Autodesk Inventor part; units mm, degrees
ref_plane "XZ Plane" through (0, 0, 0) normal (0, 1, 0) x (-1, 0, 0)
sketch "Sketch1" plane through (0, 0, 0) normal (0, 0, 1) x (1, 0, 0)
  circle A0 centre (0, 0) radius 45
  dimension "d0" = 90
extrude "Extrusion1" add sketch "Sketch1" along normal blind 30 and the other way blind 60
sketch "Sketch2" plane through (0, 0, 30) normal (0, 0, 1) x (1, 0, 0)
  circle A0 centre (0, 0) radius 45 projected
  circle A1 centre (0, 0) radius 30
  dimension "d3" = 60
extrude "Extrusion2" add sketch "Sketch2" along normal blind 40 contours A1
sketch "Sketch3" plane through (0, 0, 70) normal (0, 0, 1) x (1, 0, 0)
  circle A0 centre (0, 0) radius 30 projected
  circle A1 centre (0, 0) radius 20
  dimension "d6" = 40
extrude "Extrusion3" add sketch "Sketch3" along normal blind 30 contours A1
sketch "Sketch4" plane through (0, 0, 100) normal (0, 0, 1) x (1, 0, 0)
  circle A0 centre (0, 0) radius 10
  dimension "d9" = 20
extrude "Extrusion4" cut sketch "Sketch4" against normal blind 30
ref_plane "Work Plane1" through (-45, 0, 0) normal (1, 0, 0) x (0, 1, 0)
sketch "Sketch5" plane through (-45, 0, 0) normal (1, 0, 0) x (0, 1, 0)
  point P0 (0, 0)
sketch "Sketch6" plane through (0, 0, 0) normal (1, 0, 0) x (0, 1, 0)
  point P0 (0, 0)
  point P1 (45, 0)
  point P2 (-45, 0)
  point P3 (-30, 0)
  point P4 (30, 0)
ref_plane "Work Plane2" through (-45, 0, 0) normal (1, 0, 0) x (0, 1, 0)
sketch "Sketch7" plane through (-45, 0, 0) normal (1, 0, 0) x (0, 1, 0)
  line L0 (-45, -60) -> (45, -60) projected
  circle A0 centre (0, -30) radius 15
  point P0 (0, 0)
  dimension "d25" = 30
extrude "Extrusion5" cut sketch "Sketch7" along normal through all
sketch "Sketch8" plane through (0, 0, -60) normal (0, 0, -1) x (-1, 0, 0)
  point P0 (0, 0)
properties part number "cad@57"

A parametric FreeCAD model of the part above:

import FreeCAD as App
import Part
import Sketcher
from FreeCAD import Vector
Q = App.Units.Quantity

doc = App.newDocument("Part")
params = doc.addObject("Spreadsheet::Sheet", "Params")
for row, (alias, value) in enumerate([
    ("sketch1_diameter", "90 mm"),
    ("pad1_length", "30 mm"),
    ("pad1_length2", "60 mm"),
    ("sketch2_diameter", "60 mm"),
    ("pad2_length", "40 mm"),
    ("sketch3_diameter", "40 mm"),
    ("pad3_length", "30 mm"),
    ("sketch4_diameter", "20 mm"),
    ("pocket1_length", "30 mm"),
    ("sketch5_diameter", "30 mm"),
], start=1):
    params.set(f"A{row}", alias)
    params.set(f"B{row}", "=" + value)
    params.setAlias(f"B{row}", alias)

body = doc.addObject("PartDesign::Body", "Body")

sketch1 = body.newObject("Sketcher::SketchObject", "Sketch")
sketch1.AttachmentSupport = (doc.getObject("XY_Plane"), [""])
sketch1.MapMode = "FlatFace"
sketch1.addGeometry(Part.Circle(Vector(0, 0, 0), Vector(0, 0, 1), 45), False)
sketch1.addConstraint(Sketcher.Constraint("Coincident", 0, 3, -1, 1))
sketch1.addConstraint(Sketcher.Constraint("Diameter", 0, Q("90 mm")))
sketch1.setExpression("Constraints[1]", "Params.sketch1_diameter")
pad1 = body.newObject("PartDesign::Pad", "Pad")
pad1.Profile = sketch1
pad1.Type = "TwoLengths"
pad1.setExpression("Length", "Params.pad1_length")
pad1.setExpression("Length2", "Params.pad1_length2")

sketch2 = body.newObject("Sketcher::SketchObject", "Sketch001")
sketch2.AttachmentSupport = (doc.getObject("XY_Plane"), [""])
sketch2.MapMode = "FlatFace"
sketch2.AttachmentOffset = App.Placement(Vector(0, 0, 30), App.Rotation())
sketch2.addGeometry(Part.Circle(Vector(0, 0, 0), Vector(0, 0, 1), 30), False)
sketch2.addConstraint(Sketcher.Constraint("Coincident", 0, 3, -1, 1))
sketch2.addConstraint(Sketcher.Constraint("Diameter", 0, Q("60 mm")))
sketch2.setExpression("Constraints[1]", "Params.sketch2_diameter")
pad2 = body.newObject("PartDesign::Pad", "Pad001")
pad2.Profile = sketch2
pad2.setExpression("Length", "Params.pad2_length")

sketch3 = body.newObject("Sketcher::SketchObject", "Sketch002")
sketch3.AttachmentSupport = (doc.getObject("XY_Plane"), [""])
sketch3.MapMode = "FlatFace"
sketch3.AttachmentOffset = App.Placement(Vector(0, 0, 70), App.Rotation())
sketch3.addGeometry(Part.Circle(Vector(0, 0, 0), Vector(0, 0, 1), 20), False)
sketch3.addConstraint(Sketcher.Constraint("Coincident", 0, 3, -1, 1))
sketch3.addConstraint(Sketcher.Constraint("Diameter", 0, Q("40 mm")))
sketch3.setExpression("Constraints[1]", "Params.sketch3_diameter")
pad3 = body.newObject("PartDesign::Pad", "Pad002")
pad3.Profile = sketch3
pad3.setExpression("Length", "Params.pad3_length")

sketch4 = body.newObject("Sketcher::SketchObject", "Sketch003")
sketch4.AttachmentSupport = (doc.getObject("XY_Plane"), [""])
sketch4.MapMode = "FlatFace"
sketch4.AttachmentOffset = App.Placement(Vector(0, 0, 100), App.Rotation())
sketch4.addGeometry(Part.Circle(Vector(0, 0, 0), Vector(0, 0, 1), 10), False)
sketch4.addConstraint(Sketcher.Constraint("Coincident", 0, 3, -1, 1))
sketch4.addConstraint(Sketcher.Constraint("Diameter", 0, Q("20 mm")))
sketch4.setExpression("Constraints[1]", "Params.sketch4_diameter")
pocket1 = body.newObject("PartDesign::Pocket", "Pocket")
pocket1.Profile = sketch4
pocket1.setExpression("Length", "Params.pocket1_length")

sketch5 = body.newObject("Sketcher::SketchObject", "Sketch004")
sketch5.AttachmentSupport = (doc.getObject("YZ_Plane"), [""])
sketch5.MapMode = "FlatFace"
sketch5.AttachmentOffset = App.Placement(Vector(0, 0, -45), App.Rotation())
sketch5.addGeometry(Part.Circle(Vector(0, -30, 0), Vector(0, 0, 1), 15), False)
sketch5.addConstraint(Sketcher.Constraint("PointOnObject", 0, 3, -2))
sketch5.addConstraint(Sketcher.Constraint("Diameter", 0, Q("30 mm")))
sketch5.addConstraint(Sketcher.Constraint("DistanceY", 0, 3, -1, 1, Q("30 mm")))
sketch5.setExpression("Constraints[1]", "Params.sketch5_diameter")
pocket2 = body.newObject("PartDesign::Pocket", "Pocket001")
pocket2.Profile = sketch5
pocket2.Type = "ThroughAll"
pocket2.Reversed = True

doc.recompute()
